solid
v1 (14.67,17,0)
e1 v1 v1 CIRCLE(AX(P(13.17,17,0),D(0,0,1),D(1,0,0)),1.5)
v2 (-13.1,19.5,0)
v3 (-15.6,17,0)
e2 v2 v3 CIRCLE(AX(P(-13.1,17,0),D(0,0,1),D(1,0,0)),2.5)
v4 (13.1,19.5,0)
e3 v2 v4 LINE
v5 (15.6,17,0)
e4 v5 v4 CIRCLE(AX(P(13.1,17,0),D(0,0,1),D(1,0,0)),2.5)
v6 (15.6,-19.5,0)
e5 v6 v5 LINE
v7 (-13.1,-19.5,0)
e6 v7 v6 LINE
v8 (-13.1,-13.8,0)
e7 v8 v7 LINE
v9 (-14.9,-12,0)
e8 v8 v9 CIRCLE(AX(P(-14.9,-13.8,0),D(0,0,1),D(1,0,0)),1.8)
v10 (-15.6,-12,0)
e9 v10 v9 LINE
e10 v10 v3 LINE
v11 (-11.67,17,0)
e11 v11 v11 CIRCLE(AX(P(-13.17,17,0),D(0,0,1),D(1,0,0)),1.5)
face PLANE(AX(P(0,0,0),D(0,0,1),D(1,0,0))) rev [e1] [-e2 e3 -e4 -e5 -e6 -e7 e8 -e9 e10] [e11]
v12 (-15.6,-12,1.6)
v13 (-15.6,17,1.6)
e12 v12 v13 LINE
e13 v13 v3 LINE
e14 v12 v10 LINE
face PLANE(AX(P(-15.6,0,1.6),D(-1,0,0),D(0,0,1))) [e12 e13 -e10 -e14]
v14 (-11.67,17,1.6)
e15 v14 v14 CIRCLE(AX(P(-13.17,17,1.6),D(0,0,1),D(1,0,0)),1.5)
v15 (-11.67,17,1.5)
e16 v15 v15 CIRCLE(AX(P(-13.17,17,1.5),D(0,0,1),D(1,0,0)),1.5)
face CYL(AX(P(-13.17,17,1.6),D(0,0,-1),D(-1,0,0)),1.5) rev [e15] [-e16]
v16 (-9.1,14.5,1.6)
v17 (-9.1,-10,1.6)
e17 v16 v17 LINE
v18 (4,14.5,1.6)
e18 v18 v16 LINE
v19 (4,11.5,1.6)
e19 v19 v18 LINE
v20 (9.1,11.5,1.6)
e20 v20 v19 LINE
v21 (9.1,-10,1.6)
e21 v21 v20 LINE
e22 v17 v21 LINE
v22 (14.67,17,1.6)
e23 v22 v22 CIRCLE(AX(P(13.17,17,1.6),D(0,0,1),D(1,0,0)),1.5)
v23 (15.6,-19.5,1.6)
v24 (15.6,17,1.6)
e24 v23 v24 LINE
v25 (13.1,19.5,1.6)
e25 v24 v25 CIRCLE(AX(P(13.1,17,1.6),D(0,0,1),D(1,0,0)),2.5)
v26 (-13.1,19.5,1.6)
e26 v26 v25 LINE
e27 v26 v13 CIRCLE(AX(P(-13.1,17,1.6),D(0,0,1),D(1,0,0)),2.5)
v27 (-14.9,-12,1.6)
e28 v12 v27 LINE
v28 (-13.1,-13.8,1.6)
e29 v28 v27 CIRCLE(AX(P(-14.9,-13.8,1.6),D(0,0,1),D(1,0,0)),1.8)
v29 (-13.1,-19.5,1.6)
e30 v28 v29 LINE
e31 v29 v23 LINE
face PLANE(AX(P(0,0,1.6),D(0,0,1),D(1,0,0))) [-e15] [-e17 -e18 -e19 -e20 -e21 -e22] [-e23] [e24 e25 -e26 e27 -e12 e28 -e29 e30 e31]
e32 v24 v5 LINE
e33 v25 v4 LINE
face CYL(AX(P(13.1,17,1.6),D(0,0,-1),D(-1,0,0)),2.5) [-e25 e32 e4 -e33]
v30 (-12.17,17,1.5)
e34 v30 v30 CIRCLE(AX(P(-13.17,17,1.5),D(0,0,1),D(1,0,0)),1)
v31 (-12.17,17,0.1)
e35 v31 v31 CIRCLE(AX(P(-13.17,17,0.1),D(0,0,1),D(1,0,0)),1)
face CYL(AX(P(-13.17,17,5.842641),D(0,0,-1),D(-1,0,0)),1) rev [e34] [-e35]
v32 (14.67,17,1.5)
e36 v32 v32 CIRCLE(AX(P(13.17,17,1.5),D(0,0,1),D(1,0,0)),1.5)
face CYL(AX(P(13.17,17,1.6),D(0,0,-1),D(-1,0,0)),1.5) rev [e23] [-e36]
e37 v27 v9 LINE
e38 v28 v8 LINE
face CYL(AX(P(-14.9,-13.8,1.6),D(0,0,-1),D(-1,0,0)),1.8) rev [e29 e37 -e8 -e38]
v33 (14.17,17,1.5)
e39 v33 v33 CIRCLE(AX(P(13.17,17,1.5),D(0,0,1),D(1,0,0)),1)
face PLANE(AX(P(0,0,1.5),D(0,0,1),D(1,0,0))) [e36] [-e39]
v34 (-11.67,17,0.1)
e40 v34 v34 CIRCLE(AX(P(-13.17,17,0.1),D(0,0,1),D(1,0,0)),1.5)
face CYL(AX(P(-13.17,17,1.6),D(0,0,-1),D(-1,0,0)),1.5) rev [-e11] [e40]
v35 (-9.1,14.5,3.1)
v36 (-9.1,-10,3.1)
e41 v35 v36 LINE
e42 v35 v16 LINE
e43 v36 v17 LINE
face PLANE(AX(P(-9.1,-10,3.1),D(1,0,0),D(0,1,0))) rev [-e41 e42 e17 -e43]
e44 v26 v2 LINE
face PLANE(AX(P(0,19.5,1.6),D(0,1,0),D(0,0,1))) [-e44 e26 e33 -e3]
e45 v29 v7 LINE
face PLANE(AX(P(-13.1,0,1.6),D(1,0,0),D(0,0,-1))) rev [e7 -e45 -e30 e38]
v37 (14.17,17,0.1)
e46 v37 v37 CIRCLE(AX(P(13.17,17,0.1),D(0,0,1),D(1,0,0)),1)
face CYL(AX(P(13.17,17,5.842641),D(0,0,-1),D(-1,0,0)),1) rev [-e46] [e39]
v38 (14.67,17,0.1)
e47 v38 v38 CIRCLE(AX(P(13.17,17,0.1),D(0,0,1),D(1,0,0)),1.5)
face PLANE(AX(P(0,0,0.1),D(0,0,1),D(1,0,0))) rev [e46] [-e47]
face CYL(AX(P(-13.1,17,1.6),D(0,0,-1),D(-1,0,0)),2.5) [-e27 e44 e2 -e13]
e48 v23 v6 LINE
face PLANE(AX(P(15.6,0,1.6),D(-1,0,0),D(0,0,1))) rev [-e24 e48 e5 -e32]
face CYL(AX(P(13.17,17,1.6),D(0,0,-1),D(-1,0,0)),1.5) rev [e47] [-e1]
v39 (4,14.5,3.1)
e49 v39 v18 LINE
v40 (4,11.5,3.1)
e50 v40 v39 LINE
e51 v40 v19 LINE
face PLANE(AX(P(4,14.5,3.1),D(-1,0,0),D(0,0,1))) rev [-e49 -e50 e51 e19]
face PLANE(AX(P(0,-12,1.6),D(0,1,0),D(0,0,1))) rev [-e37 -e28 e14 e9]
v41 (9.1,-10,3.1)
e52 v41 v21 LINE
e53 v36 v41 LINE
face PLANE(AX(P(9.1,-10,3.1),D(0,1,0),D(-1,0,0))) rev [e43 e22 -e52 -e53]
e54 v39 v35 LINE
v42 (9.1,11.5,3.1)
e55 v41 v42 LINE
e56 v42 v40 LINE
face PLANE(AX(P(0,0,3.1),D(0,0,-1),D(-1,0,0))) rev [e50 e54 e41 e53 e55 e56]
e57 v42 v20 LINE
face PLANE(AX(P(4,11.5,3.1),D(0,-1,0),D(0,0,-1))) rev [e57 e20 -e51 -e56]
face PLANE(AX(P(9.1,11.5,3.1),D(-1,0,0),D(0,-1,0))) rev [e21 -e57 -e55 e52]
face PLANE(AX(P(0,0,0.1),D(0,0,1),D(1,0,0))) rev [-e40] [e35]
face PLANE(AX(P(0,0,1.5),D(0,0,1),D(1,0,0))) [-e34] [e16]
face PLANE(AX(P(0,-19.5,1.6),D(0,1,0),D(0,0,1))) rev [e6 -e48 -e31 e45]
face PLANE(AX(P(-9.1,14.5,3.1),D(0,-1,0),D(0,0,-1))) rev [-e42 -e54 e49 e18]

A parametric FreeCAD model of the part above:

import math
import FreeCAD as App
import Part
import Sketcher
Q = App.Units.Quantity

doc = App.newDocument("Part")
body = doc.addObject("PartDesign::Body", "Body")

sketch1 = doc.addObject("Sketcher::SketchObject", "Sketch")
body.addObject(sketch1)
sketch1.AttachmentSupport = (doc.XY_Plane, [""])
sketch1.MapMode = "FlatFace"
sketch1.addGeometry([
    Part.LineSegment(App.Vector(-15.6, 17, 0), App.Vector(-15.6, -12, 0)),
    Part.LineSegment(App.Vector(-15.6, -12, 0), App.Vector(-14.9, -12, 0)),
    Part.ArcOfCircle(Part.Circle(App.Vector(-14.9, -13.8, 0), App.Vector(0, 0, 1), 1.8), math.radians(0), math.radians(90)),
    Part.LineSegment(App.Vector(-13.1, -13.8, 0), App.Vector(-13.1, -19.5, 0)),
    Part.LineSegment(App.Vector(-13.1, -19.5, 0), App.Vector(15.6, -19.5, 0)),
    Part.LineSegment(App.Vector(15.6, -19.5, 0), App.Vector(15.6, 17, 0)),
    Part.ArcOfCircle(Part.Circle(App.Vector(13.1, 17, 0), App.Vector(0, 0, 1), 2.5), math.radians(0), math.radians(90)),
    Part.LineSegment(App.Vector(13.1, 19.5, 0), App.Vector(-13.1, 19.5, 0)),
    Part.ArcOfCircle(Part.Circle(App.Vector(-13.1, 17, 0), App.Vector(0, 0, 1), 2.5), math.radians(90), math.radians(180)),
    Part.Circle(App.Vector(-13.2, 17, 0), App.Vector(0, 0, 1), 1.5),
    Part.Circle(App.Vector(13.2, 17, 0), App.Vector(0, 0, 1), 1.5),
], False)
sketch1.addConstraint([
    Sketcher.Constraint("Coincident", 0, 2, 1, 1),
    Sketcher.Constraint("Tangent", 1, 2, 2, 2),
    Sketcher.Constraint("Tangent", 2, 1, 3, 1),
    Sketcher.Constraint("Coincident", 3, 2, 4, 1),
    Sketcher.Constraint("Coincident", 4, 2, 5, 1),
    Sketcher.Constraint("Tangent", 5, 2, 6, 1),
    Sketcher.Constraint("Tangent", 6, 2, 7, 1),
    Sketcher.Constraint("Tangent", 7, 2, 8, 1),
    Sketcher.Constraint("Tangent", 8, 2, 0, 1),
    Sketcher.Constraint("Vertical", 0),
    Sketcher.Constraint("Horizontal", 1),
    Sketcher.Constraint("Vertical", 3),
    Sketcher.Constraint("Horizontal", 4),
    Sketcher.Constraint("Vertical", 5),
    Sketcher.Constraint("Horizontal", 7),
    Sketcher.Constraint("Equal", 6, 8),
    Sketcher.Constraint("Equal", 9, 10),
    Sketcher.Constraint("Symmetric", 3, 2, 6, 2, -1, 1),
    Sketcher.Constraint("Symmetric", 9, 3, 10, 3, -2),
    Sketcher.Constraint("Horizontal", 8, 3, 9, 3),
    Sketcher.Constraint("Vertical", 8, 3, 2, 1),
    Sketcher.Constraint("Diameter", 9, Q("3 mm")),
    Sketcher.Constraint("Radius", 2, Q("1.8 mm")),
    Sketcher.Constraint("Radius", 6, Q("2.5 mm")),
    Sketcher.Constraint("DistanceY", 0, 2, 0, 1, Q("29 mm")),
    Sketcher.Constraint("DistanceX", 4, 1, 4, 2, Q("28.7 mm")),
    Sketcher.Constraint("DistanceY", 3, 2, 3, 1, Q("5.7 mm")),
    Sketcher.Constraint("DistanceX", 9, 3, -1, 1, Q("13.17 mm")),
])
pad1 = doc.addObject("PartDesign::Pad", "Pad")
body.addObject(pad1)
pad1.Profile = sketch1
pad1.Length = 1.6

sketch2 = doc.addObject("Sketcher::SketchObject", "Sketch001")
body.addObject(sketch2)
sketch2.AttachmentSupport = (doc.XY_Plane, [""])
sketch2.MapMode = "FlatFace"
sketch2.AttachmentOffset = App.Placement(App.Vector(0, 0, 0.1), App.Rotation())
sketch2.addGeometry([
    Part.Circle(App.Vector(13.2, 17, 0), App.Vector(0, 0, 1), 1.5),
    Part.Circle(App.Vector(13.2, 17, 0), App.Vector(0, 0, 1), 1),
    Part.Circle(App.Vector(-13.2, 17, 0), App.Vector(0, 0, 1), 1.5),
    Part.Circle(App.Vector(-13.2, 17, 0), App.Vector(0, 0, 1), 1),
], False)
sketch2.addConstraint([
    Sketcher.Constraint("Coincident", 1, 3, 0, 3),
    Sketcher.Constraint("Coincident", 3, 3, 2, 3),
    Sketcher.Constraint("Equal", 0, 2),
    Sketcher.Constraint("Equal", 1, 3),
    Sketcher.Constraint("Symmetric", 0, 3, 2, 3, -2),
    Sketcher.Constraint("Diameter", 0, Q("3 mm")),
    Sketcher.Constraint("Diameter", 1, Q("2 mm")),
    Sketcher.Constraint("DistanceY", -1, 1, 0, 3, Q("17 mm")),
    Sketcher.Constraint("DistanceX", -1, 1, 0, 3, Q("13.17 mm")),
])
pad2 = doc.addObject("PartDesign::Pad", "Pad001")
body.addObject(pad2)
pad2.Profile = sketch2
pad2.Length = 1.4

sketch3 = doc.addObject("Sketcher::SketchObject", "Sketch002")
body.addObject(sketch3)
sketch3.AttachmentSupport = (doc.XY_Plane, [""])
sketch3.MapMode = "FlatFace"
sketch3.AttachmentOffset = App.Placement(App.Vector(0, 0, 1.6), App.Rotation())
sketch3.addGeometry([
    Part.LineSegment(App.Vector(4, 14.5, 0), App.Vector(-9.1, 14.5, 0)),
    Part.LineSegment(App.Vector(-9.1, 14.5, 0), App.Vector(-9.1, -10, 0)),
    Part.LineSegment(App.Vector(-9.1, -10, 0), App.Vector(9.1, -10, 0)),
    Part.LineSegment(App.Vector(9.1, -10, 0), App.Vector(9.1, 11.5, 0)),
    Part.LineSegment(App.Vector(9.1, 11.5, 0), App.Vector(4, 11.5, 0)),
    Part.LineSegment(App.Vector(4, 11.5, 0), App.Vector(4, 14.5, 0)),
], False)
sketch3.addConstraint([
    Sketcher.Constraint("Coincident", 0, 2, 1, 1),
    Sketcher.Constraint("Coincident", 1, 2, 2, 1),
    Sketcher.Constraint("Coincident", 2, 2, 3, 1),
    Sketcher.Constraint("Coincident", 3, 2, 4, 1),
    Sketcher.Constraint("Coincident", 4, 2, 5, 1),
    Sketcher.Constraint("Coincident", 5, 2, 0, 1),
    Sketcher.Constraint("Horizontal", 0),
    Sketcher.Constraint("Vertical", 1),
    Sketcher.Constraint("Horizontal", 2),
    Sketcher.Constraint("Vertical", 3),
    Sketcher.Constraint("Horizontal", 4),
    Sketcher.Constraint("Vertical", 5),
    Sketcher.Constraint("DistanceY", 5, 1, 5, 2, Q("3 mm")),
    Sketcher.Constraint("DistanceX", 0, 2, 0, 1, Q("13.1 mm")),
    Sketcher.Constraint("DistanceX", 2, 1, 2, 2, Q("18.2 mm")),
    Sketcher.Constraint("DistanceY", 1, 2, 1, 1, Q("24.5 mm")),
    Sketcher.Constraint("DistanceY", 1, 2, -1, 1, Q("10 mm")),
    Sketcher.Constraint("DistanceX", -1, 1, 4, 2, Q("4 mm")),
])
pad3 = doc.addObject("PartDesign::Pad", "Pad002")
body.addObject(pad3)
pad3.Profile = sketch3
pad3.Length = 1.5

doc.recompute()
